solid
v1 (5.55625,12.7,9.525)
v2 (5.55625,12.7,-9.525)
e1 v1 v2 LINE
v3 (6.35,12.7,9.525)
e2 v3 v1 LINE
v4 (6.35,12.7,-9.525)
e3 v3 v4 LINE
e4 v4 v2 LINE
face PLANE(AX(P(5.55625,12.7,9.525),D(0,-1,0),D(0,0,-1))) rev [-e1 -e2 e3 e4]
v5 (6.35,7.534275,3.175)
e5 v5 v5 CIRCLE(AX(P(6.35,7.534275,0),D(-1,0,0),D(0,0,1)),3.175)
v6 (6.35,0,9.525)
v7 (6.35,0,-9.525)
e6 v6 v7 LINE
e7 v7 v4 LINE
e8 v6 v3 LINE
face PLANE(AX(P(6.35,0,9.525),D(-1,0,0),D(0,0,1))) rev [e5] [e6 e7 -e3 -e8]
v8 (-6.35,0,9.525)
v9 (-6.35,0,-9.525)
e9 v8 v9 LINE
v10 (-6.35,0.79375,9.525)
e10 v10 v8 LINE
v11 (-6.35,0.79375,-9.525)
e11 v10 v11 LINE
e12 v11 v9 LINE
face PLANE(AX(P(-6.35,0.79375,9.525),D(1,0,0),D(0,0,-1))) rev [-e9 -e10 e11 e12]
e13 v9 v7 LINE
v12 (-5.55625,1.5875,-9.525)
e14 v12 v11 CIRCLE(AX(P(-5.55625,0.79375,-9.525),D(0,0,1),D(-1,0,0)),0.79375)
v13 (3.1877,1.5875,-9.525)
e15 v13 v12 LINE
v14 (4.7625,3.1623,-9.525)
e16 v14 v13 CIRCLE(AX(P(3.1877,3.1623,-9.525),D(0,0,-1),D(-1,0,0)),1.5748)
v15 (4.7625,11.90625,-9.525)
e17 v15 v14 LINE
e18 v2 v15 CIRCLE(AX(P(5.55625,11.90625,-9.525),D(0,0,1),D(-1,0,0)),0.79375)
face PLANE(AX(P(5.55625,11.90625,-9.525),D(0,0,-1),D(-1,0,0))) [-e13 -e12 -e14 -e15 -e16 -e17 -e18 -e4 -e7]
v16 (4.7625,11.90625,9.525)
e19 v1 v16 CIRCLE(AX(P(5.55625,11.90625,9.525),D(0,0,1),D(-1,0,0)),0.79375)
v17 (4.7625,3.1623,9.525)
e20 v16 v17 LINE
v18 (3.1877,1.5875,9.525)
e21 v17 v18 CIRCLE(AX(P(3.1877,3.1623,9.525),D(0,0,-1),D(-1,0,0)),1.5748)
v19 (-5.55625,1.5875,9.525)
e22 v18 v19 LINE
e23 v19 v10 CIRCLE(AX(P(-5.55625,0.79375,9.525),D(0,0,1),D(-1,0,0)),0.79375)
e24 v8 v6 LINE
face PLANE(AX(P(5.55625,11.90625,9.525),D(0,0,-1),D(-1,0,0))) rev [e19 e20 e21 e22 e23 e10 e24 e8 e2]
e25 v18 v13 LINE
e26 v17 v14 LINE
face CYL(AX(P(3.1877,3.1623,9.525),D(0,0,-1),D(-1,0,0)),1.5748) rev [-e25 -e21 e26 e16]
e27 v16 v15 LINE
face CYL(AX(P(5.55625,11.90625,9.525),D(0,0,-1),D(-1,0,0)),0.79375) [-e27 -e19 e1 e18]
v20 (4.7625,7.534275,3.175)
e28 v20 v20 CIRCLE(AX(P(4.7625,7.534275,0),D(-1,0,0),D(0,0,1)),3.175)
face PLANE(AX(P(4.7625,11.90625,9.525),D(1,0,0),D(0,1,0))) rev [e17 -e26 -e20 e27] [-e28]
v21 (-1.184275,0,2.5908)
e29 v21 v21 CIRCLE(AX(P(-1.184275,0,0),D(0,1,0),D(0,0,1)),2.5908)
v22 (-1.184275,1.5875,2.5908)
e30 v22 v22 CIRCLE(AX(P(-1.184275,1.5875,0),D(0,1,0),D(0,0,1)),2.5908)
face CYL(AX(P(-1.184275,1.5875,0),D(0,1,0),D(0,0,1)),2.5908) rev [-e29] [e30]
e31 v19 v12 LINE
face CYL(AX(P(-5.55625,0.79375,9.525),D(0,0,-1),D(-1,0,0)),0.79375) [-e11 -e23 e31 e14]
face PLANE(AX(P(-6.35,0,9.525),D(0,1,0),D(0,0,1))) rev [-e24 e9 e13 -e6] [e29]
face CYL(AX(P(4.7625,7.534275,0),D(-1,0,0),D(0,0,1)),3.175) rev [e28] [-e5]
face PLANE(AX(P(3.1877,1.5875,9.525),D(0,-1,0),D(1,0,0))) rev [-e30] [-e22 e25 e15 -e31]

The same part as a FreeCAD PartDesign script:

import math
import FreeCAD as App
import Part
import Sketcher

V = App.Vector
Q = App.Units.Quantity

doc = App.newDocument("Part")
params = doc.addObject("Spreadsheet::Sheet", "Params")
for row, (alias, value) in enumerate([
    ("sketch1_width", "0.5 in"),
    ("sketch1_radius", "0.03125 in"),
    ("sketch1_radius2", "0.062 in"),
    ("sketch1_width2", "0.03125 in"),
    ("pad1_length", "0.75 in"),
    ("sketch2_diameter", "0.204 in"),
    ("hole_diameter", "0.204 in"),
    ("sketch3_diameter", "0.25 in"),
    ("hole2_diameter", "0.25 in"),
], start=1):
    params.set(f"A{row}", alias)
    params.set(f"B{row}", "=" + value)
    params.setAlias(f"B{row}", alias)

body = doc.addObject("PartDesign::Body", "Body")

# Sketch on XY plane
sketch1 = body.newObject("Sketcher::SketchObject", "Sketch")
sketch1.AttachmentSupport = (doc.getObject("XY_Plane"), [""])
sketch1.MapMode = "FlatFace"
sketch1.addGeometry([
    Part.LineSegment(V(-6.3, 0, 0), V(6.3, 0, 0)),  # 0
    Part.LineSegment(V(6.3, 0, 0), V(6.3, 12.7, 0)),  # 1
    Part.LineSegment(V(6.3, 12.7, 0), V(5.6, 12.7, 0)),  # 2
    Part.ArcOfCircle(Part.Circle(V(5.6, 11.9, 0), V(0, 0, 1), 0.8), math.radians(90), math.radians(180)),  # 3
    Part.LineSegment(V(4.8, 11.9, 0), V(4.8, 3.2, 0)),  # 4
    Part.ArcOfCircle(Part.Circle(V(3.2, 3.2, 0), V(0, 0, 1), 1.6), math.radians(-90), math.radians(0)),  # 5
    Part.LineSegment(V(3.2, 1.6, 0), V(-5.6, 1.6, 0)),  # 6
    Part.ArcOfCircle(Part.Circle(V(-5.6, 0.8, 0), V(0, 0, 1), 0.8), math.radians(90), math.radians(180)),  # 7
    Part.LineSegment(V(-6.3, 0.8, 0), V(-6.3, 0, 0)),  # 8
], False)
sketch1.addConstraint([
    Sketcher.Constraint("Coincident", 0, 2, 1, 1),
    Sketcher.Constraint("Coincident", 1, 2, 2, 1),
    Sketcher.Constraint("Tangent", 2, 2, 3, 1),
    Sketcher.Constraint("Tangent", 3, 2, 4, 1),
    Sketcher.Constraint("Tangent", 4, 2, 5, 2),
    Sketcher.Constraint("Tangent", 5, 1, 6, 1),
    Sketcher.Constraint("Tangent", 6, 2, 7, 1),
    Sketcher.Constraint("Tangent", 7, 2, 8, 1),
    Sketcher.Constraint("Coincident", 8, 2, 0, 1),
    Sketcher.Constraint("Horizontal", 0),
    Sketcher.Constraint("Vertical", 1),
    Sketcher.Constraint("Horizontal", 2),
    Sketcher.Constraint("Vertical", 4),
    Sketcher.Constraint("Horizontal", 6),
    Sketcher.Constraint("Vertical", 8),
    Sketcher.Constraint("Equal", 3, 7),
    Sketcher.Constraint("Symmetric", 0, 2, 8, 2, -1, 1),
    Sketcher.Constraint("Equal", 0, 1),
    Sketcher.Constraint("Equal", 6, 4),
    Sketcher.Constraint("DistanceX", 0, 1, 0, 2, Q("0.5 in")),
    Sketcher.Constraint("Radius", 3, Q("0.03125 in")),
    Sketcher.Constraint("Radius", 5, Q("0.062 in")),
    Sketcher.Constraint("DistanceX", 2, 2, 2, 1, Q("0.03125 in")),
])
sketch1.setExpression("Constraints[19]", "Params.sketch1_width")
sketch1.setExpression("Constraints[20]", "Params.sketch1_radius")
sketch1.setExpression("Constraints[21]", "Params.sketch1_radius2")
sketch1.setExpression("Constraints[22]", "Params.sketch1_width2")
pad1 = body.newObject("PartDesign::Pad", "Pad")
pad1.Profile = sketch1
pad1.setExpression("Length", "Params.pad1_length")
pad1.Midplane = True

# Sketch on XZ plane
sketch2 = body.newObject("Sketcher::SketchObject", "Sketch001")
sketch2.AttachmentSupport = (doc.getObject("XZ_Plane"), [""])
sketch2.MapMode = "FlatFace"
sketch2.AttachmentOffset = App.Placement(V(0, 0, -0.0625 * 25.4), App.Rotation())
sketch2.addGeometry(Part.Circle(V(-1.2, 0, 0), V(0, 0, 1), 2.6), False)
sketch2.addConstraint([
    Sketcher.Constraint("PointOnObject", 0, 3, -1),
    Sketcher.Constraint("Diameter", 0, Q("0.204 in")),
    Sketcher.Constraint("DistanceX", 0, 3, -1, 1, Q("1.184275 mm")),
])
sketch2.setExpression("Constraints[1]", "Params.sketch2_diameter")
doc.recompute()
hole = body.newObject("PartDesign::Hole", "Hole")
hole.Profile = sketch2
hole.ThreadType = "None"
hole.setExpression("Diameter", "Params.hole_diameter")
hole.DepthType = "ThroughAll"
hole.Reversed = True

# Sketch on YZ plane
sketch3 = body.newObject("Sketcher::SketchObject", "Sketch002")
sketch3.AttachmentSupport = (doc.getObject("YZ_Plane"), [""])
sketch3.MapMode = "FlatFace"
sketch3.AttachmentOffset = App.Placement(V(0, 0, 0.1875 * 25.4), App.Rotation())
sketch3.addGeometry(Part.Circle(V(7.5, 0, 0), V(0, 0, 1), 3.2), False)
sketch3.addConstraint([
    Sketcher.Constraint("PointOnObject", 0, 3, -1),
    Sketcher.Constraint("Diameter", 0, Q("0.25 in")),
    Sketcher.Constraint("DistanceX", -1, 1, 0, 3, Q("7.534275 mm")),
])
sketch3.setExpression("Constraints[1]", "Params.sketch3_diameter")
doc.recompute()
hole2 = body.newObject("PartDesign::Hole", "Hole001")
hole2.Profile = sketch3
hole2.ThreadType = "None"
hole2.setExpression("Diameter", "Params.hole2_diameter")
hole2.DepthType = "ThroughAll"
hole2.Reversed = True

doc.recompute()
